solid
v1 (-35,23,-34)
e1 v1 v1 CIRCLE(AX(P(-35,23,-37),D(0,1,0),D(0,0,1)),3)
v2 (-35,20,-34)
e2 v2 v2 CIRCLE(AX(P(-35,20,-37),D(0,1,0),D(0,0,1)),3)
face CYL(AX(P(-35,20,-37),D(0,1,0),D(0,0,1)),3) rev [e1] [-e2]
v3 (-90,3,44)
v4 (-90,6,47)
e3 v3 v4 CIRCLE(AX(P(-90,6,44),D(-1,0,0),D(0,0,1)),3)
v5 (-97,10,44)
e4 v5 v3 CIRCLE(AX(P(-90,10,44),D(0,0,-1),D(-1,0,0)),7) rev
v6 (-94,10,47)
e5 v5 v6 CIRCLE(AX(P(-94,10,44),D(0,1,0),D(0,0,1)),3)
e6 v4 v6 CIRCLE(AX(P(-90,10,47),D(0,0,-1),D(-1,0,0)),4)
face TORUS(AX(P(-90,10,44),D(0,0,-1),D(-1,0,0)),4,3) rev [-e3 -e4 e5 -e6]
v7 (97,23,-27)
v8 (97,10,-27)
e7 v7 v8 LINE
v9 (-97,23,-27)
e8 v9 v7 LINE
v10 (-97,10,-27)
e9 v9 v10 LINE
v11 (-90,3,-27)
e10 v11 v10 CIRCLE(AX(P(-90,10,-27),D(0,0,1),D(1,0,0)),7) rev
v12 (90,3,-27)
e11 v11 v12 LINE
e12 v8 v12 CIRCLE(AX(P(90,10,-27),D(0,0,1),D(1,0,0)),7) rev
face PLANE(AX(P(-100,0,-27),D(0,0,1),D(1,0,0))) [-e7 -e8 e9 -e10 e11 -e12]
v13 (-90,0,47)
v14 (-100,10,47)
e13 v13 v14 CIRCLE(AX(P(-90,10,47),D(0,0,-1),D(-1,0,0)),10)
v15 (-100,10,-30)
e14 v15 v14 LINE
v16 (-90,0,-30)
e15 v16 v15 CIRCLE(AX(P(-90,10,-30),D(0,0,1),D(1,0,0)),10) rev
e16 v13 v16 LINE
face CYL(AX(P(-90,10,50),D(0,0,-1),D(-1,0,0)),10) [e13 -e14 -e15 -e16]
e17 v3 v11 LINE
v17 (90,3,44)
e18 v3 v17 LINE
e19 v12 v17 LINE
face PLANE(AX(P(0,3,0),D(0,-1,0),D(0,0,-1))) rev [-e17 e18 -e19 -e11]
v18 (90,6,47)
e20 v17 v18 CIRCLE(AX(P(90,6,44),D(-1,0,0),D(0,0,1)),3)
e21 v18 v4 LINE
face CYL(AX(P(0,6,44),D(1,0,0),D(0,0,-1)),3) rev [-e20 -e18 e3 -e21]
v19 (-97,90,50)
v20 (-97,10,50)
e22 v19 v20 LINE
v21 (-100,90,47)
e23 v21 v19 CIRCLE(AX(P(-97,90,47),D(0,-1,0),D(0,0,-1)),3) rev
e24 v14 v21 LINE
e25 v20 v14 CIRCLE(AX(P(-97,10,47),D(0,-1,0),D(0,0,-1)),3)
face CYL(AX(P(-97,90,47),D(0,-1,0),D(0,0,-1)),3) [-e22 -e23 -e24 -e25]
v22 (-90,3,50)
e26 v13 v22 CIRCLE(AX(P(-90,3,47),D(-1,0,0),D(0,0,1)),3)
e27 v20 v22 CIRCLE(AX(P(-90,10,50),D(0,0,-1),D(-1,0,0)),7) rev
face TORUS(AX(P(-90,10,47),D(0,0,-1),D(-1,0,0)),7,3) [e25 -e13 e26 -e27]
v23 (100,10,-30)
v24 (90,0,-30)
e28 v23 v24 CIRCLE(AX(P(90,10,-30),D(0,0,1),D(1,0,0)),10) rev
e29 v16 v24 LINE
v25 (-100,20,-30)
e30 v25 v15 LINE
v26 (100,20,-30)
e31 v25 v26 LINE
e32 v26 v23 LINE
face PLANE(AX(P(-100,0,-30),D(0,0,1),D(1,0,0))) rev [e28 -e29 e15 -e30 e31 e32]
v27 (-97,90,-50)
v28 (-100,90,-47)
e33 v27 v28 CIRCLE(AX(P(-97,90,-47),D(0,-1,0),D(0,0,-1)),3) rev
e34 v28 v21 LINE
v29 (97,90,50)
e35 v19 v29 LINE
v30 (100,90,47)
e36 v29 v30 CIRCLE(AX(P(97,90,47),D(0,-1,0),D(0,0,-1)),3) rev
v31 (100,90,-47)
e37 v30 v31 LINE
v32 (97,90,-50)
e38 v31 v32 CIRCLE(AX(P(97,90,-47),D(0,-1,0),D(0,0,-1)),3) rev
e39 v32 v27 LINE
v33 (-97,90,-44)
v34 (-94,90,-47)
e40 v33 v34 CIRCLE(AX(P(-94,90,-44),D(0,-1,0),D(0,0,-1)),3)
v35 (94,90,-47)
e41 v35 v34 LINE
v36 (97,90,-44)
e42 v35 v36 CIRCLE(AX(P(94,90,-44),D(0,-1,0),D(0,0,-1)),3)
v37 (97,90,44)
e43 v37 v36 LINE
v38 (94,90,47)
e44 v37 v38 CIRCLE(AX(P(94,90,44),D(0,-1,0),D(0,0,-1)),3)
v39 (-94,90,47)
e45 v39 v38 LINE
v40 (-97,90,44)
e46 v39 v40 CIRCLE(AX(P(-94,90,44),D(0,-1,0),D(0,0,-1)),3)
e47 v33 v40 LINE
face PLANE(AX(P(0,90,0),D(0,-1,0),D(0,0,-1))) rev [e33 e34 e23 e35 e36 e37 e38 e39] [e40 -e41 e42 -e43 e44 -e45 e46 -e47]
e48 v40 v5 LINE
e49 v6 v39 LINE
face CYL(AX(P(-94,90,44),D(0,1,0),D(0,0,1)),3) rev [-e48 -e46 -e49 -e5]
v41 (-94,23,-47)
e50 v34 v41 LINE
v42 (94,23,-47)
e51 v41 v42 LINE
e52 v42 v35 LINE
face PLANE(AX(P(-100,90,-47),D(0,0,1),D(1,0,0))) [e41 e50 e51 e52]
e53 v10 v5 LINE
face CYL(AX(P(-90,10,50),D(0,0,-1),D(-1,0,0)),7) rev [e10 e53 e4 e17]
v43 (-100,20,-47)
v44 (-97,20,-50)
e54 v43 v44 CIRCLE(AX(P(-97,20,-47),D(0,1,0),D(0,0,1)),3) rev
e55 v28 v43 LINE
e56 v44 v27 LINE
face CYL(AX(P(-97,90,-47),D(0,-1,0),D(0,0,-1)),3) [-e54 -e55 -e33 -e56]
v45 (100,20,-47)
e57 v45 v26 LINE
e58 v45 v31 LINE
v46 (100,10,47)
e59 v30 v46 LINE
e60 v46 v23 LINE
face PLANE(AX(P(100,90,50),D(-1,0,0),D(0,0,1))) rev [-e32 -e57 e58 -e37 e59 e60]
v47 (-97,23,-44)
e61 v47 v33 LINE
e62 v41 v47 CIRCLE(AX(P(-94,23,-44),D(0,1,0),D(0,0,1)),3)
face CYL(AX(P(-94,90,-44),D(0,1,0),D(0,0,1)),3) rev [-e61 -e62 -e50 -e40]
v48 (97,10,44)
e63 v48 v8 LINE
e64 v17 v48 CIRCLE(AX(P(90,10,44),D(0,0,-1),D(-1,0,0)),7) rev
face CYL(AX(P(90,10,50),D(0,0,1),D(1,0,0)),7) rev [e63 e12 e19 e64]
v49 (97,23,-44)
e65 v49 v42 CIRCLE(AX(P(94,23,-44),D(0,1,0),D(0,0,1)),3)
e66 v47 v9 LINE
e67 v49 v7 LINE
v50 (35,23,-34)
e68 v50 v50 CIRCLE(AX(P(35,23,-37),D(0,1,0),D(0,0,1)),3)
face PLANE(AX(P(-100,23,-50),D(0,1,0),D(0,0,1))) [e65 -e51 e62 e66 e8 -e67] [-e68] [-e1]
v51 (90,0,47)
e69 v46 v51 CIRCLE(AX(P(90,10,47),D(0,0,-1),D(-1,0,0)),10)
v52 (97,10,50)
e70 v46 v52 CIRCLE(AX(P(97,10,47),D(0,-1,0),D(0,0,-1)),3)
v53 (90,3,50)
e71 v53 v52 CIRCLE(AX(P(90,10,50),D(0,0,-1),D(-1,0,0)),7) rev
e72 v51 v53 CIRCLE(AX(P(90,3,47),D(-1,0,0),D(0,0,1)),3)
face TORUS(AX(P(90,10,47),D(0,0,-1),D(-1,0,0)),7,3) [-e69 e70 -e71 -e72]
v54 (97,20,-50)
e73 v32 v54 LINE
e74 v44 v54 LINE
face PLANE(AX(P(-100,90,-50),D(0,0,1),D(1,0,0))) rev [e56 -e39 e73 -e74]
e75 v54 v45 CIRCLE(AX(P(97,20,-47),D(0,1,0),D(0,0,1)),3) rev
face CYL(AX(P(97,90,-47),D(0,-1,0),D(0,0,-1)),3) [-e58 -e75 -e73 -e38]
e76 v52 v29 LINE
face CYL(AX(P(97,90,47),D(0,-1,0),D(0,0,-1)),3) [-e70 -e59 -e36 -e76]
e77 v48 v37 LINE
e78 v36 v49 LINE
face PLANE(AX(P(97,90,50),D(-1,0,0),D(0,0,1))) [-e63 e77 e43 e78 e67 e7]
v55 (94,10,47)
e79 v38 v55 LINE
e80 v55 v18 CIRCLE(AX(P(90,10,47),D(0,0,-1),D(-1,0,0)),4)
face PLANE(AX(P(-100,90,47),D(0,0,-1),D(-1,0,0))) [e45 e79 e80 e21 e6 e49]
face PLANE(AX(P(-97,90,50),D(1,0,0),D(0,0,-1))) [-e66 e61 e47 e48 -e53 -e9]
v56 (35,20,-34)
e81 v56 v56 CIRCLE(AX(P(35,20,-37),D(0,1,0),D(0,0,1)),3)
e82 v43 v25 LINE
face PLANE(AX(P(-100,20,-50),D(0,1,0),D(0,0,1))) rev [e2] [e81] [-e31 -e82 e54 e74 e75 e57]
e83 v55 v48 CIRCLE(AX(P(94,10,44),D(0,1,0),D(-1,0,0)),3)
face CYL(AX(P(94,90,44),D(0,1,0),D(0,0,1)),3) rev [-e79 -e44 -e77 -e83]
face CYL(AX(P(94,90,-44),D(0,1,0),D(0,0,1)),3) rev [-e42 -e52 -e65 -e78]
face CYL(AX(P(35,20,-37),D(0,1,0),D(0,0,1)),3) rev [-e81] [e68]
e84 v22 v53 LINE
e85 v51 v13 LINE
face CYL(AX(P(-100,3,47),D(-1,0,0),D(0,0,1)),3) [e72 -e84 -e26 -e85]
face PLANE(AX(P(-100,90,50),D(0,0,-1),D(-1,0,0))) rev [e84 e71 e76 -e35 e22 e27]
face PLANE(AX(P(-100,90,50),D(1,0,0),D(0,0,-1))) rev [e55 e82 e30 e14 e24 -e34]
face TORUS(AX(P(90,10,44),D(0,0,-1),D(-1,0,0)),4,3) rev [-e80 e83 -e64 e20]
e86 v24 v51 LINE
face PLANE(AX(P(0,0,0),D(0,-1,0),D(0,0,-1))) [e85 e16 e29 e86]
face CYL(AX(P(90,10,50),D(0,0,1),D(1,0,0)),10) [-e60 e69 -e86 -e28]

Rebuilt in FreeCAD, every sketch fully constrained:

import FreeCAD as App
import Part
import Sketcher
from FreeCAD import Vector


def edges_at(feature, points):
    """Names of the edges that pass closest to the given points."""
    edges = feature.Shape.Edges
    near = lambda p: min(range(len(edges)), key=lambda i: edges[i].distToShape(Part.Vertex(*p))[0])
    return sorted({f"Edge{near(p) + 1}" for p in points})


def faces_at(feature, points):
    """Names of the faces that lie closest to the given points."""
    faces = feature.Shape.Faces
    near = lambda p: min(range(len(faces)), key=lambda i: faces[i].distToShape(Part.Vertex(*p))[0])
    return sorted({f"Face{near(p) + 1}" for p in points})


def add_polygon(sketch, points):
    """Adds a closed chain of lines whose ends are joined by coincident constraints."""
    first, n = sketch.GeometryCount, len(points)
    for a, b in zip(points, points[1:] + points[:1]):
        sketch.addGeometry(Part.LineSegment(App.Vector(*a, 0), App.Vector(*b, 0)), False)
    for i in range(n):
        sketch.addConstraint(Sketcher.Constraint("Coincident", first + i, 2, first + (i + 1) % n, 1))

doc = App.newDocument("Part")
params = doc.addObject("Spreadsheet::Sheet", "Params")
for row, (alias, value) in enumerate([
    ("sketch1_width", "200 mm"),
    ("sketch1_height", "100 mm"),
    ("pad1_length", "90 mm"),
    ("sketch2_width", "20 mm"),
    ("pocket1_length", "200 mm"),
    ("fillet_radius", "10 mm"),
    ("thickness_wall", "3 mm"),
    ("fillet2_radius", "3 mm"),
    ("sketch3_diameter", "6 mm"),
    ("pocket2_length", "3 mm"),
], start=1):
    params.set(f"A{row}", alias)
    params.set(f"B{row}", "=" + value)
    params.setAlias(f"B{row}", alias)

body = doc.addObject("PartDesign::Body", "Body")

sketch1 = body.newObject("Sketcher::SketchObject", "Sketch")
sketch1.AttachmentSupport = (doc.getObject("XZ_Plane"), [""])
sketch1.MapMode = "FlatFace"
add_polygon(sketch1, [(-100, -50), (-100, 50), (100, 50), (100, -50)])
sketch1.addConstraint(Sketcher.Constraint("Vertical", 0))
sketch1.addConstraint(Sketcher.Constraint("Horizontal", 1))
sketch1.addConstraint(Sketcher.Constraint("Vertical", 2))
sketch1.addConstraint(Sketcher.Constraint("Horizontal", 3))
sketch1.addConstraint(Sketcher.Constraint("Symmetric", 0, 2, 2, 2, -1, 1))
sketch1.addConstraint(Sketcher.Constraint("DistanceX", 1, 1, 1, 2, 200.0))
sketch1.addConstraint(Sketcher.Constraint("DistanceY", 0, 1, 0, 2, 100.0))
sketch1.setExpression("Constraints[9]", "Params.sketch1_width")
sketch1.setExpression("Constraints[10]", "Params.sketch1_height")
pad1 = body.newObject("PartDesign::Pad", "Pad")
pad1.Profile = sketch1
pad1.setExpression("Length", "Params.pad1_length")
pad1.Reversed = True

sketch2 = body.newObject("Sketcher::SketchObject", "Sketch001")
sketch2.AttachmentSupport = (doc.getObject("YZ_Plane"), [""])
sketch2.MapMode = "FlatFace"
sketch2.AttachmentOffset = App.Placement(Vector(0, 0, 100), App.Rotation())
add_polygon(sketch2, [(20, -30), (0, -30), (0, -50), (20, -50)])
sketch2.addConstraint(Sketcher.Constraint("Horizontal", 0))
sketch2.addConstraint(Sketcher.Constraint("Vertical", 1))
sketch2.addConstraint(Sketcher.Constraint("Horizontal", 2))
sketch2.addConstraint(Sketcher.Constraint("Vertical", 3))
sketch2.addConstraint(Sketcher.Constraint("PointOnObject", 0, 2, -2))
sketch2.addConstraint(Sketcher.Constraint("Equal", 2, 1))
sketch2.addConstraint(Sketcher.Constraint("DistanceX", 0, 2, 0, 1, 20.0))
sketch2.addConstraint(Sketcher.Constraint("DistanceY", 0, 2, -1, 1, 30.0))
sketch2.setExpression("Constraints[10]", "Params.sketch2_width")
pocket1 = body.newObject("PartDesign::Pocket", "Pocket")
pocket1.Profile = sketch2
pocket1.setExpression("Length", "Params.pocket1_length")
doc.recompute()

fillet = body.newObject("PartDesign::Fillet", "Fillet")
fillet.Base = (pocket1, edges_at(pocket1, [(-100, 0, 10), (100, 0, 10)]))
fillet.setExpression("Radius", "Params.fillet_radius")
doc.recompute()

thickness = body.newObject("PartDesign::Thickness", "Thickness")
thickness.Base = (fillet, faces_at(fillet, [(0, 90, 0)]))
thickness.setExpression("Value", "Params.thickness_wall")
thickness.Reversed = True
thickness.Join = "Intersection"
doc.recompute()

fillet2 = body.newObject("PartDesign::Fillet", "Fillet001")
fillet2.Base = (thickness, edges_at(thickness, [
    (0, 0, 50),
    (97.071, 2.929, 50),
    (-97.071, 2.929, 50),
    (97, 50, 47),
    (97, 56.5, -47),
    (-97, 56.5, -47),
    (-97, 50, 47),
    (-94.95, 5.05, 47),
    (0, 3, 47),
    (94.95, 5.05, 47),
    (100, 50, 50),
    (-100, 50, 50),
    (-100, 55, -50),
    (100, 55, -50),
]))
fillet2.setExpression("Radius", "Params.fillet2_radius")

sketch3 = body.newObject("Sketcher::SketchObject", "Sketch002")
sketch3.AttachmentSupport = (doc.getObject("XZ_Plane"), [""])
sketch3.MapMode = "FlatFace"
sketch3.AttachmentOffset = App.Placement(Vector(0, 0, -23), App.Rotation())
sketch3.addGeometry(Part.Circle(Vector(-35, -37, 0), Vector(0, 0, 1), 3), False)
sketch3.addGeometry(Part.Circle(Vector(35, -37, 0), Vector(0, 0, 1), 3), False)
sketch3.addConstraint(Sketcher.Constraint("Equal", 0, 1))
sketch3.addConstraint(Sketcher.Constraint("Symmetric", 0, 3, 1, 3, -2))
sketch3.addConstraint(Sketcher.Constraint("Diameter", 0, 6.0))
sketch3.addConstraint(Sketcher.Constraint("DistanceX", 0, 3, -1, 1, 35.0))
sketch3.addConstraint(Sketcher.Constraint("DistanceY", 0, 3, -1, 1, 37.0))
sketch3.setExpression("Constraints[2]", "Params.sketch3_diameter")
pocket2 = body.newObject("PartDesign::Pocket", "Pocket001")
pocket2.Profile = sketch3
pocket2.setExpression("Length", "Params.pocket2_length")
pocket2.Reversed = True

doc.recompute()
